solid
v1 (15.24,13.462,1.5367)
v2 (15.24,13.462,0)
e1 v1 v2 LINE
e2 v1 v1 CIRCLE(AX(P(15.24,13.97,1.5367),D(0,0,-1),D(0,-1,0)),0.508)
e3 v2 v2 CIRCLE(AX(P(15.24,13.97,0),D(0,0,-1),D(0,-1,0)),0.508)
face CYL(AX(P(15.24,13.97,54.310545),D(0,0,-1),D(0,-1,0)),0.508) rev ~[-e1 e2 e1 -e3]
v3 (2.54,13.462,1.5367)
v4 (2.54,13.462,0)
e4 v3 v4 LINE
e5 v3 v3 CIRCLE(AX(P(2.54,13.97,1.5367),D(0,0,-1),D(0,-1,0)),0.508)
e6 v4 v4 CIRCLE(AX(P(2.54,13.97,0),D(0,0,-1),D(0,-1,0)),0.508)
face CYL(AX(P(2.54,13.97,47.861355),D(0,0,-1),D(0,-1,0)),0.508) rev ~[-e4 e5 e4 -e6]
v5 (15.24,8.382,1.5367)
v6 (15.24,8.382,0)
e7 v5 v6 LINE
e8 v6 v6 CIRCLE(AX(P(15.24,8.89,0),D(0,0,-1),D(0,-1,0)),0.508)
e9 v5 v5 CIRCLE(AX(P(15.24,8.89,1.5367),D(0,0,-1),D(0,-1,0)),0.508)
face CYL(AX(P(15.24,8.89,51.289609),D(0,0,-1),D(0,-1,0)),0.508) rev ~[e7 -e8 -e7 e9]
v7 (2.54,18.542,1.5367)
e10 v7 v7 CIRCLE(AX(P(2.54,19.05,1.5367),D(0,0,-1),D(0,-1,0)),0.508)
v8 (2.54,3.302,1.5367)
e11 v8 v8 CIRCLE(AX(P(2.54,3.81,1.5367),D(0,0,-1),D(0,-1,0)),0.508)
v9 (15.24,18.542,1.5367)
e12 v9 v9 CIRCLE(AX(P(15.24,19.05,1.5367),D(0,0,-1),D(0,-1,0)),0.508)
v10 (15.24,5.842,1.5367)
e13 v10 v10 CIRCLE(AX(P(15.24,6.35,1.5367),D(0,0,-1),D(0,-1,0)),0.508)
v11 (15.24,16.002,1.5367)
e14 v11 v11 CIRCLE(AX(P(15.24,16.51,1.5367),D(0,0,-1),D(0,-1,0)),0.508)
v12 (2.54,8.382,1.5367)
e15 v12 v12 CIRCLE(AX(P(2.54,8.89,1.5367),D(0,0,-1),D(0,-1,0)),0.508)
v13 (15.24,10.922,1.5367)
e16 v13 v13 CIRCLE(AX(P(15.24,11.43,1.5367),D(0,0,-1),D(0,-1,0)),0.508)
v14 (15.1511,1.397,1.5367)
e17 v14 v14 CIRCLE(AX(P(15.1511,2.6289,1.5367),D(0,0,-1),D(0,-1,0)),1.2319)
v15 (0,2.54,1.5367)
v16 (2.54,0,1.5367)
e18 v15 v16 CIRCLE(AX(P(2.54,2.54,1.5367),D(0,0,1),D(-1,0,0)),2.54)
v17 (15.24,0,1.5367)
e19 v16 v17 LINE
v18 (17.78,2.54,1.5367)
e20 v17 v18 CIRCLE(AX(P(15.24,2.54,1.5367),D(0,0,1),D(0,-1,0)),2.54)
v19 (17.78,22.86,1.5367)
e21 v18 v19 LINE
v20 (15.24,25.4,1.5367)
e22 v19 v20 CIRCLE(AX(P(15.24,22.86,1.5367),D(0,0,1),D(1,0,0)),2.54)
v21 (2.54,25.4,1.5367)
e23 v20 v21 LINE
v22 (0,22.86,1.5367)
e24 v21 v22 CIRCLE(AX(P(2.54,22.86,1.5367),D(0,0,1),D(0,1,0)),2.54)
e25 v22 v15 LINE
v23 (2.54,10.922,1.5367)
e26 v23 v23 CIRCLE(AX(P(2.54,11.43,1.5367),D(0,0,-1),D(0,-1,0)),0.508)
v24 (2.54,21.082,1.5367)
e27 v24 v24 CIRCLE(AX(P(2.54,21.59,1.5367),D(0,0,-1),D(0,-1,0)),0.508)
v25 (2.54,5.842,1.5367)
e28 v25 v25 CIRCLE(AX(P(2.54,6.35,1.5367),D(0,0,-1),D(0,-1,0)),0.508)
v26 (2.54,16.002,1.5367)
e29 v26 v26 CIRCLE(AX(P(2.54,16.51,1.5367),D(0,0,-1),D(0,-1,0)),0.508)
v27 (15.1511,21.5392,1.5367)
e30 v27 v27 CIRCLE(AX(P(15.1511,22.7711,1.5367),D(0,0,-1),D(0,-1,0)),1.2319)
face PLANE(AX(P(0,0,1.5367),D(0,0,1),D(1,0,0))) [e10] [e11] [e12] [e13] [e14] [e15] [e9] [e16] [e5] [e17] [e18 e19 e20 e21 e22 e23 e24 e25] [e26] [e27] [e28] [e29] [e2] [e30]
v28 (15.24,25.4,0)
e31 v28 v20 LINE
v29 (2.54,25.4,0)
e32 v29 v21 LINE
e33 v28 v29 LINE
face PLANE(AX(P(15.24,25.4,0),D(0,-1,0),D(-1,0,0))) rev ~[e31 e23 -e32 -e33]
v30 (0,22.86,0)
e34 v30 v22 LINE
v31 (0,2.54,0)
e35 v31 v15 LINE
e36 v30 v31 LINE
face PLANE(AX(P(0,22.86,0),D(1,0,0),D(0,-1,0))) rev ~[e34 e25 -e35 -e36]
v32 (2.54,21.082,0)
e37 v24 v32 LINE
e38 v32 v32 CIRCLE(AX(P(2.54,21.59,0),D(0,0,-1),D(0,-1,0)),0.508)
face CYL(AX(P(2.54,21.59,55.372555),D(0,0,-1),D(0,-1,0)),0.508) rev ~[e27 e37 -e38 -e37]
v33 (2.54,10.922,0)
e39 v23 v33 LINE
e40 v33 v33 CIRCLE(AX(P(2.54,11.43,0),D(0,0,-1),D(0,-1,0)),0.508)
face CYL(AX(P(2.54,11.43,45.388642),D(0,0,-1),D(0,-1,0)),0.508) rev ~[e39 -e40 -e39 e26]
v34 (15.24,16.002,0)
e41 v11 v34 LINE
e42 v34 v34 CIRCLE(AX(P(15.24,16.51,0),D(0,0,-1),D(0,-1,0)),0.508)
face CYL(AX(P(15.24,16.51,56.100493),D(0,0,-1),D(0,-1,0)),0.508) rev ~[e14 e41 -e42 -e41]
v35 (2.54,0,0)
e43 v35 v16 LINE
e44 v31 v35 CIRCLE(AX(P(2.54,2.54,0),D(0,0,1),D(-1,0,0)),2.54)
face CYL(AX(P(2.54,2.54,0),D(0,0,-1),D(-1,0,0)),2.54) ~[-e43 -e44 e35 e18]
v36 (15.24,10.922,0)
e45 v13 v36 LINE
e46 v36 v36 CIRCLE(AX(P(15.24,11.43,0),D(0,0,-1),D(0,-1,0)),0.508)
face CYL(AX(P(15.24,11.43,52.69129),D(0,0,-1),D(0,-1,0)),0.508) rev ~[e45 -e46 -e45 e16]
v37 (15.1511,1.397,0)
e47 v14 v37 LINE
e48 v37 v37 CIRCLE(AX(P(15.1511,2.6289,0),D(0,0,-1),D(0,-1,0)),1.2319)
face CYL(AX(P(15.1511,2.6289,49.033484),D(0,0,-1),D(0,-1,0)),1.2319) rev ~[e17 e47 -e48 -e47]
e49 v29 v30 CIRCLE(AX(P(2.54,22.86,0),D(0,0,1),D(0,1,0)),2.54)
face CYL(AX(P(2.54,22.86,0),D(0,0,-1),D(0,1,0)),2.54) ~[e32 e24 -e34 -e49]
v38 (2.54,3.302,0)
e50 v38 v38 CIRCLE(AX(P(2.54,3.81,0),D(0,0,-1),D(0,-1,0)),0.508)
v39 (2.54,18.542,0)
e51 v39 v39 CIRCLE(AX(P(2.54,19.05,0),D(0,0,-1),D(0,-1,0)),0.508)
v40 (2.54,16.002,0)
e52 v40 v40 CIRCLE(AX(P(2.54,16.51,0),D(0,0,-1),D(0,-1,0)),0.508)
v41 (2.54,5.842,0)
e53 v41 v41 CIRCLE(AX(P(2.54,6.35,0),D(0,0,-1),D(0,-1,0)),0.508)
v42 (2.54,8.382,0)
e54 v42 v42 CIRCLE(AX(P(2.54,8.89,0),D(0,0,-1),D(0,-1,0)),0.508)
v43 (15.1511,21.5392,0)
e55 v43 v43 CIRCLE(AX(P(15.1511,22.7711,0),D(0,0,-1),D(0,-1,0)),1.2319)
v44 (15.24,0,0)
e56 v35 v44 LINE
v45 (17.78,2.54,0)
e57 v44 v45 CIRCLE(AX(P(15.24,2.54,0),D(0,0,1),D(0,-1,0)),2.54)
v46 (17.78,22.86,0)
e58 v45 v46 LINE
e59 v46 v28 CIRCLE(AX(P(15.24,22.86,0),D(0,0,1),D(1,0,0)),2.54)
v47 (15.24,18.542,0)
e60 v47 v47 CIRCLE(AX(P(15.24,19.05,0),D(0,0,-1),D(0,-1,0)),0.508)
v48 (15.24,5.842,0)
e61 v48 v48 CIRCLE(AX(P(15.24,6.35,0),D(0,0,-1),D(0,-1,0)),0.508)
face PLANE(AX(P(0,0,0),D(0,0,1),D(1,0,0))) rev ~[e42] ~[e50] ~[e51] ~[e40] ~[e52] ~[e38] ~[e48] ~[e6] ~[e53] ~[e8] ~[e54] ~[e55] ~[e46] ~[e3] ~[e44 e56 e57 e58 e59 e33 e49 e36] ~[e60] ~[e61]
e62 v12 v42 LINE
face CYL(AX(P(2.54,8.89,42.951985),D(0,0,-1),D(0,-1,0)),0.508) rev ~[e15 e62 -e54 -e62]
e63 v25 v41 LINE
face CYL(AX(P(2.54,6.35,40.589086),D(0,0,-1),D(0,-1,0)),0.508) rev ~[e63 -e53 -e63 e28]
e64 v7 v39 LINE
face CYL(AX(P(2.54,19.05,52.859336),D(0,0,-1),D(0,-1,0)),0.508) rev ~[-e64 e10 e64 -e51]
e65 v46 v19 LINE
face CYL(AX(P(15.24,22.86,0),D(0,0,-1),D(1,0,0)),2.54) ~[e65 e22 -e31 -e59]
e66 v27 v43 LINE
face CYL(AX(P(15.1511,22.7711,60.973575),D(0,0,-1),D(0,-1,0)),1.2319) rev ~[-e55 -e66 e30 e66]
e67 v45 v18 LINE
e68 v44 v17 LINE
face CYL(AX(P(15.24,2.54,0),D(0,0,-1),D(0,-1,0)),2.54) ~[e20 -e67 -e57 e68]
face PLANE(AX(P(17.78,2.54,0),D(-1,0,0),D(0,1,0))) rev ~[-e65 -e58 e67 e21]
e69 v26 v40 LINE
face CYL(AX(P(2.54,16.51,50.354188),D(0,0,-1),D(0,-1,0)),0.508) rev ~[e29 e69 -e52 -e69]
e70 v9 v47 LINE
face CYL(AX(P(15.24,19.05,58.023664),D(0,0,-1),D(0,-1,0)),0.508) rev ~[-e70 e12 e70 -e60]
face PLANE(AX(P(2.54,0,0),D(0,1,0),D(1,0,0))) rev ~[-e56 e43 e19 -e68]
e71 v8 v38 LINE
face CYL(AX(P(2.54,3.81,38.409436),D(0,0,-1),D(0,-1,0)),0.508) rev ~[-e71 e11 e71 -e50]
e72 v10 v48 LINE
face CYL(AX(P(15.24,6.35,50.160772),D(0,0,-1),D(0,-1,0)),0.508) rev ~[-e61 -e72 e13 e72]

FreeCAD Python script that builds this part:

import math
import FreeCAD as App
import Part
import Sketcher
from FreeCAD import Vector
Q = App.Units.Quantity

doc = App.newDocument("Part")
body = doc.addObject("PartDesign::Body", "Body")

sketch1 = body.newObject("Sketcher::SketchObject", "Sketch")
sketch1.AttachmentSupport = (doc.getObject("XY_Plane"), [""])
sketch1.MapMode = "FlatFace"
sketch1.addGeometry([
    Part.ArcOfCircle(Part.Circle(Vector(2.5, 2.5, 0), Vector(0, 0, 1), 2.5), math.radians(180), math.radians(270)),
    Part.LineSegment(Vector(2.5, 0, 0), Vector(15.2, 0, 0)),
    Part.ArcOfCircle(Part.Circle(Vector(15.2, 2.5, 0), Vector(0, 0, 1), 2.5), math.radians(-90), math.radians(0)),
    Part.LineSegment(Vector(17.8, 2.5, 0), Vector(17.8, 22.9, 0)),
    Part.ArcOfCircle(Part.Circle(Vector(15.2, 22.9, 0), Vector(0, 0, 1), 2.5), math.radians(0), math.radians(90)),
    Part.LineSegment(Vector(15.2, 25.4, 0), Vector(2.5, 25.4, 0)),
    Part.ArcOfCircle(Part.Circle(Vector(2.5, 22.9, 0), Vector(0, 0, 1), 2.5), math.radians(90), math.radians(180)),
    Part.LineSegment(Vector(0, 22.9, 0), Vector(0, 2.5, 0)),
], False)
sketch1.addConstraint([
    Sketcher.Constraint("Tangent", 0, 2, 1, 1),
    Sketcher.Constraint("Tangent", 1, 2, 2, 1),
    Sketcher.Constraint("Tangent", 2, 2, 3, 1),
    Sketcher.Constraint("Tangent", 3, 2, 4, 1),
    Sketcher.Constraint("Tangent", 4, 2, 5, 1),
    Sketcher.Constraint("Tangent", 5, 2, 6, 1),
    Sketcher.Constraint("Tangent", 6, 2, 7, 1),
    Sketcher.Constraint("Tangent", 7, 2, 0, 1),
    Sketcher.Constraint("Horizontal", 1),
    Sketcher.Constraint("Vertical", 3),
    Sketcher.Constraint("Horizontal", 5),
    Sketcher.Constraint("Vertical", 7),
    Sketcher.Constraint("Equal", 0, 2),
    Sketcher.Constraint("Equal", 2, 4),
    Sketcher.Constraint("Equal", 4, 6),
    Sketcher.Constraint("PointOnObject", 0, 2, -1),
    Sketcher.Constraint("PointOnObject", 6, 2, -2),
    Sketcher.Constraint("Radius", 0, Q("0.1 in")),
    Sketcher.Constraint("DistanceY", -1, 1, 4, 2, Q("1 in")),
    Sketcher.Constraint("DistanceX", -1, 1, 2, 2, Q("0.7 in")),
])
pad1 = body.newObject("PartDesign::Pad", "Pad")
pad1.Profile = sketch1
pad1.Length = Q("0.0605 in")

sketch2 = body.newObject("Sketcher::SketchObject", "Sketch001")
sketch2.AttachmentSupport = (doc.getObject("XY_Plane"), [""])
sketch2.MapMode = "FlatFace"
sketch2.AttachmentOffset = App.Placement(Vector(0, 0, 0.0605 * 25.4), App.Rotation())
sketch2.addGeometry([
    Part.Circle(Vector(15.2, 22.8, 0), Vector(0, 0, 1), 1.2),
    Part.Circle(Vector(15.2, 2.6, 0), Vector(0, 0, 1), 1.2),
], False)
sketch2.addConstraint([
    Sketcher.Constraint("Equal", 0, 1),
    Sketcher.Constraint("Vertical", 0, 3, 1, 3),
    Sketcher.Constraint("Diameter", 0, Q("0.097 in")),
    Sketcher.Constraint("DistanceY", 1, 3, 0, 3, Q("0.793 in")),
    Sketcher.Constraint("DistanceX", -1, 1, 0, 3, Q("0.5965 in")),
    Sketcher.Constraint("DistanceY", -1, 1, 0, 3, Q("0.8965 in")),
])
doc.recompute()
hole = body.newObject("PartDesign::Hole", "Hole")
hole.Profile = sketch2
hole.ThreadType = "None"
hole.Diameter = Q("0.097 in")
hole.DepthType = "ThroughAll"

sketch3 = body.newObject("Sketcher::SketchObject", "Sketch002")
sketch3.AttachmentSupport = (doc.getObject("XY_Plane"), [""])
sketch3.MapMode = "FlatFace"
sketch3.AttachmentOffset = App.Placement(Vector(0, 0, 0.0605 * 25.4), App.Rotation())
sketch3.addGeometry([
    Part.Circle(Vector(15.2, 14, 0), Vector(0, 0, 1), 0.5),
    Part.Circle(Vector(2.5, 14, 0), Vector(0, 0, 1), 0.5),
    Part.Circle(Vector(15.2, 16.5, 0), Vector(0, 0, 1), 0.5),
    Part.Circle(Vector(15.2, 19.1, 0), Vector(0, 0, 1), 0.5),
    Part.Circle(Vector(15.2, 11.4, 0), Vector(0, 0, 1), 0.5),
    Part.Circle(Vector(15.2, 8.9, 0), Vector(0, 0, 1), 0.5),
    Part.Circle(Vector(15.2, 6.3, 0), Vector(0, 0, 1), 0.5),
    Part.Circle(Vector(2.5, 16.5, 0), Vector(0, 0, 1), 0.5),
    Part.Circle(Vector(2.5, 19.1, 0), Vector(0, 0, 1), 0.5),
    Part.Circle(Vector(2.5, 21.6, 0), Vector(0, 0, 1), 0.5),
    Part.Circle(Vector(2.5, 11.4, 0), Vector(0, 0, 1), 0.5),
    Part.Circle(Vector(2.5, 8.9, 0), Vector(0, 0, 1), 0.5),
    Part.Circle(Vector(2.5, 6.3, 0), Vector(0, 0, 1), 0.5),
    Part.Circle(Vector(2.5, 3.8, 0), Vector(0, 0, 1), 0.5),
], False)
sketch3.addConstraint([
    Sketcher.Constraint("Equal", 0, 1),
    Sketcher.Constraint("Equal", 1, 2),
    Sketcher.Constraint("Equal", 2, 3),
    Sketcher.Constraint("Equal", 3, 4),
    Sketcher.Constraint("Equal", 4, 5),
    Sketcher.Constraint("Equal", 5, 6),
    Sketcher.Constraint("Equal", 6, 7),
    Sketcher.Constraint("Equal", 7, 8),
    Sketcher.Constraint("Equal", 8, 9),
    Sketcher.Constraint("Equal", 9, 10),
    Sketcher.Constraint("Equal", 10, 11),
    Sketcher.Constraint("Equal", 11, 12),
    Sketcher.Constraint("Equal", 12, 13),
    Sketcher.Constraint("Horizontal", 0, 3, 1, 3),
    Sketcher.Constraint("Horizontal", 2, 3, 7, 3),
    Sketcher.Constraint("Horizontal", 3, 3, 8, 3),
    Sketcher.Constraint("Horizontal", 4, 3, 10, 3),
    Sketcher.Constraint("Horizontal", 5, 3, 11, 3),
    Sketcher.Constraint("Horizontal", 6, 3, 12, 3),
    Sketcher.Constraint("Vertical", 0, 3, 2, 3),
    Sketcher.Constraint("Vertical", 2, 3, 3, 3),
    Sketcher.Constraint("Vertical", 3, 3, 4, 3),
    Sketcher.Constraint("Vertical", 4, 3, 5, 3),
    Sketcher.Constraint("Vertical", 5, 3, 6, 3),
    Sketcher.Constraint("Vertical", 1, 3, 7, 3),
    Sketcher.Constraint("Vertical", 7, 3, 8, 3),
    Sketcher.Constraint("Vertical", 8, 3, 9, 3),
    Sketcher.Constraint("Vertical", 9, 3, 10, 3),
    Sketcher.Constraint("Vertical", 10, 3, 11, 3),
    Sketcher.Constraint("Vertical", 11, 3, 12, 3),
    Sketcher.Constraint("Vertical", 12, 3, 13, 3),
    Sketcher.Constraint("Diameter", 0, Q("0.04 in")),
    Sketcher.Constraint("DistanceX", -1, 1, 0, 3, Q("0.6 in")),
    Sketcher.Constraint("DistanceX", -1, 1, 1, 3, Q("0.1 in")),
    Sketcher.Constraint("DistanceY", 0, 3, 2, 3, Q("0.1 in")),
    Sketcher.Constraint("DistanceY", 2, 3, 3, 3, Q("0.1 in")),
    Sketcher.Constraint("DistanceY", 4, 3, 0, 3, Q("0.1 in")),
    Sketcher.Constraint("DistanceY", 5, 3, 4, 3, Q("0.1 in")),
    Sketcher.Constraint("DistanceY", 6, 3, 5, 3, Q("0.1 in")),
    Sketcher.Constraint("DistanceY", 8, 3, 9, 3, Q("0.1 in")),
    Sketcher.Constraint("DistanceY", 13, 3, 12, 3, Q("0.1 in")),
    Sketcher.Constraint("DistanceY", -1, 1, 0, 3, Q("0.55 in")),
])
doc.recompute()
hole2 = body.newObject("PartDesign::Hole", "Hole001")
hole2.Profile = sketch3
hole2.ThreadType = "None"
hole2.Diameter = Q("0.04 in")
hole2.DepthType = "ThroughAll"

doc.recompute()
